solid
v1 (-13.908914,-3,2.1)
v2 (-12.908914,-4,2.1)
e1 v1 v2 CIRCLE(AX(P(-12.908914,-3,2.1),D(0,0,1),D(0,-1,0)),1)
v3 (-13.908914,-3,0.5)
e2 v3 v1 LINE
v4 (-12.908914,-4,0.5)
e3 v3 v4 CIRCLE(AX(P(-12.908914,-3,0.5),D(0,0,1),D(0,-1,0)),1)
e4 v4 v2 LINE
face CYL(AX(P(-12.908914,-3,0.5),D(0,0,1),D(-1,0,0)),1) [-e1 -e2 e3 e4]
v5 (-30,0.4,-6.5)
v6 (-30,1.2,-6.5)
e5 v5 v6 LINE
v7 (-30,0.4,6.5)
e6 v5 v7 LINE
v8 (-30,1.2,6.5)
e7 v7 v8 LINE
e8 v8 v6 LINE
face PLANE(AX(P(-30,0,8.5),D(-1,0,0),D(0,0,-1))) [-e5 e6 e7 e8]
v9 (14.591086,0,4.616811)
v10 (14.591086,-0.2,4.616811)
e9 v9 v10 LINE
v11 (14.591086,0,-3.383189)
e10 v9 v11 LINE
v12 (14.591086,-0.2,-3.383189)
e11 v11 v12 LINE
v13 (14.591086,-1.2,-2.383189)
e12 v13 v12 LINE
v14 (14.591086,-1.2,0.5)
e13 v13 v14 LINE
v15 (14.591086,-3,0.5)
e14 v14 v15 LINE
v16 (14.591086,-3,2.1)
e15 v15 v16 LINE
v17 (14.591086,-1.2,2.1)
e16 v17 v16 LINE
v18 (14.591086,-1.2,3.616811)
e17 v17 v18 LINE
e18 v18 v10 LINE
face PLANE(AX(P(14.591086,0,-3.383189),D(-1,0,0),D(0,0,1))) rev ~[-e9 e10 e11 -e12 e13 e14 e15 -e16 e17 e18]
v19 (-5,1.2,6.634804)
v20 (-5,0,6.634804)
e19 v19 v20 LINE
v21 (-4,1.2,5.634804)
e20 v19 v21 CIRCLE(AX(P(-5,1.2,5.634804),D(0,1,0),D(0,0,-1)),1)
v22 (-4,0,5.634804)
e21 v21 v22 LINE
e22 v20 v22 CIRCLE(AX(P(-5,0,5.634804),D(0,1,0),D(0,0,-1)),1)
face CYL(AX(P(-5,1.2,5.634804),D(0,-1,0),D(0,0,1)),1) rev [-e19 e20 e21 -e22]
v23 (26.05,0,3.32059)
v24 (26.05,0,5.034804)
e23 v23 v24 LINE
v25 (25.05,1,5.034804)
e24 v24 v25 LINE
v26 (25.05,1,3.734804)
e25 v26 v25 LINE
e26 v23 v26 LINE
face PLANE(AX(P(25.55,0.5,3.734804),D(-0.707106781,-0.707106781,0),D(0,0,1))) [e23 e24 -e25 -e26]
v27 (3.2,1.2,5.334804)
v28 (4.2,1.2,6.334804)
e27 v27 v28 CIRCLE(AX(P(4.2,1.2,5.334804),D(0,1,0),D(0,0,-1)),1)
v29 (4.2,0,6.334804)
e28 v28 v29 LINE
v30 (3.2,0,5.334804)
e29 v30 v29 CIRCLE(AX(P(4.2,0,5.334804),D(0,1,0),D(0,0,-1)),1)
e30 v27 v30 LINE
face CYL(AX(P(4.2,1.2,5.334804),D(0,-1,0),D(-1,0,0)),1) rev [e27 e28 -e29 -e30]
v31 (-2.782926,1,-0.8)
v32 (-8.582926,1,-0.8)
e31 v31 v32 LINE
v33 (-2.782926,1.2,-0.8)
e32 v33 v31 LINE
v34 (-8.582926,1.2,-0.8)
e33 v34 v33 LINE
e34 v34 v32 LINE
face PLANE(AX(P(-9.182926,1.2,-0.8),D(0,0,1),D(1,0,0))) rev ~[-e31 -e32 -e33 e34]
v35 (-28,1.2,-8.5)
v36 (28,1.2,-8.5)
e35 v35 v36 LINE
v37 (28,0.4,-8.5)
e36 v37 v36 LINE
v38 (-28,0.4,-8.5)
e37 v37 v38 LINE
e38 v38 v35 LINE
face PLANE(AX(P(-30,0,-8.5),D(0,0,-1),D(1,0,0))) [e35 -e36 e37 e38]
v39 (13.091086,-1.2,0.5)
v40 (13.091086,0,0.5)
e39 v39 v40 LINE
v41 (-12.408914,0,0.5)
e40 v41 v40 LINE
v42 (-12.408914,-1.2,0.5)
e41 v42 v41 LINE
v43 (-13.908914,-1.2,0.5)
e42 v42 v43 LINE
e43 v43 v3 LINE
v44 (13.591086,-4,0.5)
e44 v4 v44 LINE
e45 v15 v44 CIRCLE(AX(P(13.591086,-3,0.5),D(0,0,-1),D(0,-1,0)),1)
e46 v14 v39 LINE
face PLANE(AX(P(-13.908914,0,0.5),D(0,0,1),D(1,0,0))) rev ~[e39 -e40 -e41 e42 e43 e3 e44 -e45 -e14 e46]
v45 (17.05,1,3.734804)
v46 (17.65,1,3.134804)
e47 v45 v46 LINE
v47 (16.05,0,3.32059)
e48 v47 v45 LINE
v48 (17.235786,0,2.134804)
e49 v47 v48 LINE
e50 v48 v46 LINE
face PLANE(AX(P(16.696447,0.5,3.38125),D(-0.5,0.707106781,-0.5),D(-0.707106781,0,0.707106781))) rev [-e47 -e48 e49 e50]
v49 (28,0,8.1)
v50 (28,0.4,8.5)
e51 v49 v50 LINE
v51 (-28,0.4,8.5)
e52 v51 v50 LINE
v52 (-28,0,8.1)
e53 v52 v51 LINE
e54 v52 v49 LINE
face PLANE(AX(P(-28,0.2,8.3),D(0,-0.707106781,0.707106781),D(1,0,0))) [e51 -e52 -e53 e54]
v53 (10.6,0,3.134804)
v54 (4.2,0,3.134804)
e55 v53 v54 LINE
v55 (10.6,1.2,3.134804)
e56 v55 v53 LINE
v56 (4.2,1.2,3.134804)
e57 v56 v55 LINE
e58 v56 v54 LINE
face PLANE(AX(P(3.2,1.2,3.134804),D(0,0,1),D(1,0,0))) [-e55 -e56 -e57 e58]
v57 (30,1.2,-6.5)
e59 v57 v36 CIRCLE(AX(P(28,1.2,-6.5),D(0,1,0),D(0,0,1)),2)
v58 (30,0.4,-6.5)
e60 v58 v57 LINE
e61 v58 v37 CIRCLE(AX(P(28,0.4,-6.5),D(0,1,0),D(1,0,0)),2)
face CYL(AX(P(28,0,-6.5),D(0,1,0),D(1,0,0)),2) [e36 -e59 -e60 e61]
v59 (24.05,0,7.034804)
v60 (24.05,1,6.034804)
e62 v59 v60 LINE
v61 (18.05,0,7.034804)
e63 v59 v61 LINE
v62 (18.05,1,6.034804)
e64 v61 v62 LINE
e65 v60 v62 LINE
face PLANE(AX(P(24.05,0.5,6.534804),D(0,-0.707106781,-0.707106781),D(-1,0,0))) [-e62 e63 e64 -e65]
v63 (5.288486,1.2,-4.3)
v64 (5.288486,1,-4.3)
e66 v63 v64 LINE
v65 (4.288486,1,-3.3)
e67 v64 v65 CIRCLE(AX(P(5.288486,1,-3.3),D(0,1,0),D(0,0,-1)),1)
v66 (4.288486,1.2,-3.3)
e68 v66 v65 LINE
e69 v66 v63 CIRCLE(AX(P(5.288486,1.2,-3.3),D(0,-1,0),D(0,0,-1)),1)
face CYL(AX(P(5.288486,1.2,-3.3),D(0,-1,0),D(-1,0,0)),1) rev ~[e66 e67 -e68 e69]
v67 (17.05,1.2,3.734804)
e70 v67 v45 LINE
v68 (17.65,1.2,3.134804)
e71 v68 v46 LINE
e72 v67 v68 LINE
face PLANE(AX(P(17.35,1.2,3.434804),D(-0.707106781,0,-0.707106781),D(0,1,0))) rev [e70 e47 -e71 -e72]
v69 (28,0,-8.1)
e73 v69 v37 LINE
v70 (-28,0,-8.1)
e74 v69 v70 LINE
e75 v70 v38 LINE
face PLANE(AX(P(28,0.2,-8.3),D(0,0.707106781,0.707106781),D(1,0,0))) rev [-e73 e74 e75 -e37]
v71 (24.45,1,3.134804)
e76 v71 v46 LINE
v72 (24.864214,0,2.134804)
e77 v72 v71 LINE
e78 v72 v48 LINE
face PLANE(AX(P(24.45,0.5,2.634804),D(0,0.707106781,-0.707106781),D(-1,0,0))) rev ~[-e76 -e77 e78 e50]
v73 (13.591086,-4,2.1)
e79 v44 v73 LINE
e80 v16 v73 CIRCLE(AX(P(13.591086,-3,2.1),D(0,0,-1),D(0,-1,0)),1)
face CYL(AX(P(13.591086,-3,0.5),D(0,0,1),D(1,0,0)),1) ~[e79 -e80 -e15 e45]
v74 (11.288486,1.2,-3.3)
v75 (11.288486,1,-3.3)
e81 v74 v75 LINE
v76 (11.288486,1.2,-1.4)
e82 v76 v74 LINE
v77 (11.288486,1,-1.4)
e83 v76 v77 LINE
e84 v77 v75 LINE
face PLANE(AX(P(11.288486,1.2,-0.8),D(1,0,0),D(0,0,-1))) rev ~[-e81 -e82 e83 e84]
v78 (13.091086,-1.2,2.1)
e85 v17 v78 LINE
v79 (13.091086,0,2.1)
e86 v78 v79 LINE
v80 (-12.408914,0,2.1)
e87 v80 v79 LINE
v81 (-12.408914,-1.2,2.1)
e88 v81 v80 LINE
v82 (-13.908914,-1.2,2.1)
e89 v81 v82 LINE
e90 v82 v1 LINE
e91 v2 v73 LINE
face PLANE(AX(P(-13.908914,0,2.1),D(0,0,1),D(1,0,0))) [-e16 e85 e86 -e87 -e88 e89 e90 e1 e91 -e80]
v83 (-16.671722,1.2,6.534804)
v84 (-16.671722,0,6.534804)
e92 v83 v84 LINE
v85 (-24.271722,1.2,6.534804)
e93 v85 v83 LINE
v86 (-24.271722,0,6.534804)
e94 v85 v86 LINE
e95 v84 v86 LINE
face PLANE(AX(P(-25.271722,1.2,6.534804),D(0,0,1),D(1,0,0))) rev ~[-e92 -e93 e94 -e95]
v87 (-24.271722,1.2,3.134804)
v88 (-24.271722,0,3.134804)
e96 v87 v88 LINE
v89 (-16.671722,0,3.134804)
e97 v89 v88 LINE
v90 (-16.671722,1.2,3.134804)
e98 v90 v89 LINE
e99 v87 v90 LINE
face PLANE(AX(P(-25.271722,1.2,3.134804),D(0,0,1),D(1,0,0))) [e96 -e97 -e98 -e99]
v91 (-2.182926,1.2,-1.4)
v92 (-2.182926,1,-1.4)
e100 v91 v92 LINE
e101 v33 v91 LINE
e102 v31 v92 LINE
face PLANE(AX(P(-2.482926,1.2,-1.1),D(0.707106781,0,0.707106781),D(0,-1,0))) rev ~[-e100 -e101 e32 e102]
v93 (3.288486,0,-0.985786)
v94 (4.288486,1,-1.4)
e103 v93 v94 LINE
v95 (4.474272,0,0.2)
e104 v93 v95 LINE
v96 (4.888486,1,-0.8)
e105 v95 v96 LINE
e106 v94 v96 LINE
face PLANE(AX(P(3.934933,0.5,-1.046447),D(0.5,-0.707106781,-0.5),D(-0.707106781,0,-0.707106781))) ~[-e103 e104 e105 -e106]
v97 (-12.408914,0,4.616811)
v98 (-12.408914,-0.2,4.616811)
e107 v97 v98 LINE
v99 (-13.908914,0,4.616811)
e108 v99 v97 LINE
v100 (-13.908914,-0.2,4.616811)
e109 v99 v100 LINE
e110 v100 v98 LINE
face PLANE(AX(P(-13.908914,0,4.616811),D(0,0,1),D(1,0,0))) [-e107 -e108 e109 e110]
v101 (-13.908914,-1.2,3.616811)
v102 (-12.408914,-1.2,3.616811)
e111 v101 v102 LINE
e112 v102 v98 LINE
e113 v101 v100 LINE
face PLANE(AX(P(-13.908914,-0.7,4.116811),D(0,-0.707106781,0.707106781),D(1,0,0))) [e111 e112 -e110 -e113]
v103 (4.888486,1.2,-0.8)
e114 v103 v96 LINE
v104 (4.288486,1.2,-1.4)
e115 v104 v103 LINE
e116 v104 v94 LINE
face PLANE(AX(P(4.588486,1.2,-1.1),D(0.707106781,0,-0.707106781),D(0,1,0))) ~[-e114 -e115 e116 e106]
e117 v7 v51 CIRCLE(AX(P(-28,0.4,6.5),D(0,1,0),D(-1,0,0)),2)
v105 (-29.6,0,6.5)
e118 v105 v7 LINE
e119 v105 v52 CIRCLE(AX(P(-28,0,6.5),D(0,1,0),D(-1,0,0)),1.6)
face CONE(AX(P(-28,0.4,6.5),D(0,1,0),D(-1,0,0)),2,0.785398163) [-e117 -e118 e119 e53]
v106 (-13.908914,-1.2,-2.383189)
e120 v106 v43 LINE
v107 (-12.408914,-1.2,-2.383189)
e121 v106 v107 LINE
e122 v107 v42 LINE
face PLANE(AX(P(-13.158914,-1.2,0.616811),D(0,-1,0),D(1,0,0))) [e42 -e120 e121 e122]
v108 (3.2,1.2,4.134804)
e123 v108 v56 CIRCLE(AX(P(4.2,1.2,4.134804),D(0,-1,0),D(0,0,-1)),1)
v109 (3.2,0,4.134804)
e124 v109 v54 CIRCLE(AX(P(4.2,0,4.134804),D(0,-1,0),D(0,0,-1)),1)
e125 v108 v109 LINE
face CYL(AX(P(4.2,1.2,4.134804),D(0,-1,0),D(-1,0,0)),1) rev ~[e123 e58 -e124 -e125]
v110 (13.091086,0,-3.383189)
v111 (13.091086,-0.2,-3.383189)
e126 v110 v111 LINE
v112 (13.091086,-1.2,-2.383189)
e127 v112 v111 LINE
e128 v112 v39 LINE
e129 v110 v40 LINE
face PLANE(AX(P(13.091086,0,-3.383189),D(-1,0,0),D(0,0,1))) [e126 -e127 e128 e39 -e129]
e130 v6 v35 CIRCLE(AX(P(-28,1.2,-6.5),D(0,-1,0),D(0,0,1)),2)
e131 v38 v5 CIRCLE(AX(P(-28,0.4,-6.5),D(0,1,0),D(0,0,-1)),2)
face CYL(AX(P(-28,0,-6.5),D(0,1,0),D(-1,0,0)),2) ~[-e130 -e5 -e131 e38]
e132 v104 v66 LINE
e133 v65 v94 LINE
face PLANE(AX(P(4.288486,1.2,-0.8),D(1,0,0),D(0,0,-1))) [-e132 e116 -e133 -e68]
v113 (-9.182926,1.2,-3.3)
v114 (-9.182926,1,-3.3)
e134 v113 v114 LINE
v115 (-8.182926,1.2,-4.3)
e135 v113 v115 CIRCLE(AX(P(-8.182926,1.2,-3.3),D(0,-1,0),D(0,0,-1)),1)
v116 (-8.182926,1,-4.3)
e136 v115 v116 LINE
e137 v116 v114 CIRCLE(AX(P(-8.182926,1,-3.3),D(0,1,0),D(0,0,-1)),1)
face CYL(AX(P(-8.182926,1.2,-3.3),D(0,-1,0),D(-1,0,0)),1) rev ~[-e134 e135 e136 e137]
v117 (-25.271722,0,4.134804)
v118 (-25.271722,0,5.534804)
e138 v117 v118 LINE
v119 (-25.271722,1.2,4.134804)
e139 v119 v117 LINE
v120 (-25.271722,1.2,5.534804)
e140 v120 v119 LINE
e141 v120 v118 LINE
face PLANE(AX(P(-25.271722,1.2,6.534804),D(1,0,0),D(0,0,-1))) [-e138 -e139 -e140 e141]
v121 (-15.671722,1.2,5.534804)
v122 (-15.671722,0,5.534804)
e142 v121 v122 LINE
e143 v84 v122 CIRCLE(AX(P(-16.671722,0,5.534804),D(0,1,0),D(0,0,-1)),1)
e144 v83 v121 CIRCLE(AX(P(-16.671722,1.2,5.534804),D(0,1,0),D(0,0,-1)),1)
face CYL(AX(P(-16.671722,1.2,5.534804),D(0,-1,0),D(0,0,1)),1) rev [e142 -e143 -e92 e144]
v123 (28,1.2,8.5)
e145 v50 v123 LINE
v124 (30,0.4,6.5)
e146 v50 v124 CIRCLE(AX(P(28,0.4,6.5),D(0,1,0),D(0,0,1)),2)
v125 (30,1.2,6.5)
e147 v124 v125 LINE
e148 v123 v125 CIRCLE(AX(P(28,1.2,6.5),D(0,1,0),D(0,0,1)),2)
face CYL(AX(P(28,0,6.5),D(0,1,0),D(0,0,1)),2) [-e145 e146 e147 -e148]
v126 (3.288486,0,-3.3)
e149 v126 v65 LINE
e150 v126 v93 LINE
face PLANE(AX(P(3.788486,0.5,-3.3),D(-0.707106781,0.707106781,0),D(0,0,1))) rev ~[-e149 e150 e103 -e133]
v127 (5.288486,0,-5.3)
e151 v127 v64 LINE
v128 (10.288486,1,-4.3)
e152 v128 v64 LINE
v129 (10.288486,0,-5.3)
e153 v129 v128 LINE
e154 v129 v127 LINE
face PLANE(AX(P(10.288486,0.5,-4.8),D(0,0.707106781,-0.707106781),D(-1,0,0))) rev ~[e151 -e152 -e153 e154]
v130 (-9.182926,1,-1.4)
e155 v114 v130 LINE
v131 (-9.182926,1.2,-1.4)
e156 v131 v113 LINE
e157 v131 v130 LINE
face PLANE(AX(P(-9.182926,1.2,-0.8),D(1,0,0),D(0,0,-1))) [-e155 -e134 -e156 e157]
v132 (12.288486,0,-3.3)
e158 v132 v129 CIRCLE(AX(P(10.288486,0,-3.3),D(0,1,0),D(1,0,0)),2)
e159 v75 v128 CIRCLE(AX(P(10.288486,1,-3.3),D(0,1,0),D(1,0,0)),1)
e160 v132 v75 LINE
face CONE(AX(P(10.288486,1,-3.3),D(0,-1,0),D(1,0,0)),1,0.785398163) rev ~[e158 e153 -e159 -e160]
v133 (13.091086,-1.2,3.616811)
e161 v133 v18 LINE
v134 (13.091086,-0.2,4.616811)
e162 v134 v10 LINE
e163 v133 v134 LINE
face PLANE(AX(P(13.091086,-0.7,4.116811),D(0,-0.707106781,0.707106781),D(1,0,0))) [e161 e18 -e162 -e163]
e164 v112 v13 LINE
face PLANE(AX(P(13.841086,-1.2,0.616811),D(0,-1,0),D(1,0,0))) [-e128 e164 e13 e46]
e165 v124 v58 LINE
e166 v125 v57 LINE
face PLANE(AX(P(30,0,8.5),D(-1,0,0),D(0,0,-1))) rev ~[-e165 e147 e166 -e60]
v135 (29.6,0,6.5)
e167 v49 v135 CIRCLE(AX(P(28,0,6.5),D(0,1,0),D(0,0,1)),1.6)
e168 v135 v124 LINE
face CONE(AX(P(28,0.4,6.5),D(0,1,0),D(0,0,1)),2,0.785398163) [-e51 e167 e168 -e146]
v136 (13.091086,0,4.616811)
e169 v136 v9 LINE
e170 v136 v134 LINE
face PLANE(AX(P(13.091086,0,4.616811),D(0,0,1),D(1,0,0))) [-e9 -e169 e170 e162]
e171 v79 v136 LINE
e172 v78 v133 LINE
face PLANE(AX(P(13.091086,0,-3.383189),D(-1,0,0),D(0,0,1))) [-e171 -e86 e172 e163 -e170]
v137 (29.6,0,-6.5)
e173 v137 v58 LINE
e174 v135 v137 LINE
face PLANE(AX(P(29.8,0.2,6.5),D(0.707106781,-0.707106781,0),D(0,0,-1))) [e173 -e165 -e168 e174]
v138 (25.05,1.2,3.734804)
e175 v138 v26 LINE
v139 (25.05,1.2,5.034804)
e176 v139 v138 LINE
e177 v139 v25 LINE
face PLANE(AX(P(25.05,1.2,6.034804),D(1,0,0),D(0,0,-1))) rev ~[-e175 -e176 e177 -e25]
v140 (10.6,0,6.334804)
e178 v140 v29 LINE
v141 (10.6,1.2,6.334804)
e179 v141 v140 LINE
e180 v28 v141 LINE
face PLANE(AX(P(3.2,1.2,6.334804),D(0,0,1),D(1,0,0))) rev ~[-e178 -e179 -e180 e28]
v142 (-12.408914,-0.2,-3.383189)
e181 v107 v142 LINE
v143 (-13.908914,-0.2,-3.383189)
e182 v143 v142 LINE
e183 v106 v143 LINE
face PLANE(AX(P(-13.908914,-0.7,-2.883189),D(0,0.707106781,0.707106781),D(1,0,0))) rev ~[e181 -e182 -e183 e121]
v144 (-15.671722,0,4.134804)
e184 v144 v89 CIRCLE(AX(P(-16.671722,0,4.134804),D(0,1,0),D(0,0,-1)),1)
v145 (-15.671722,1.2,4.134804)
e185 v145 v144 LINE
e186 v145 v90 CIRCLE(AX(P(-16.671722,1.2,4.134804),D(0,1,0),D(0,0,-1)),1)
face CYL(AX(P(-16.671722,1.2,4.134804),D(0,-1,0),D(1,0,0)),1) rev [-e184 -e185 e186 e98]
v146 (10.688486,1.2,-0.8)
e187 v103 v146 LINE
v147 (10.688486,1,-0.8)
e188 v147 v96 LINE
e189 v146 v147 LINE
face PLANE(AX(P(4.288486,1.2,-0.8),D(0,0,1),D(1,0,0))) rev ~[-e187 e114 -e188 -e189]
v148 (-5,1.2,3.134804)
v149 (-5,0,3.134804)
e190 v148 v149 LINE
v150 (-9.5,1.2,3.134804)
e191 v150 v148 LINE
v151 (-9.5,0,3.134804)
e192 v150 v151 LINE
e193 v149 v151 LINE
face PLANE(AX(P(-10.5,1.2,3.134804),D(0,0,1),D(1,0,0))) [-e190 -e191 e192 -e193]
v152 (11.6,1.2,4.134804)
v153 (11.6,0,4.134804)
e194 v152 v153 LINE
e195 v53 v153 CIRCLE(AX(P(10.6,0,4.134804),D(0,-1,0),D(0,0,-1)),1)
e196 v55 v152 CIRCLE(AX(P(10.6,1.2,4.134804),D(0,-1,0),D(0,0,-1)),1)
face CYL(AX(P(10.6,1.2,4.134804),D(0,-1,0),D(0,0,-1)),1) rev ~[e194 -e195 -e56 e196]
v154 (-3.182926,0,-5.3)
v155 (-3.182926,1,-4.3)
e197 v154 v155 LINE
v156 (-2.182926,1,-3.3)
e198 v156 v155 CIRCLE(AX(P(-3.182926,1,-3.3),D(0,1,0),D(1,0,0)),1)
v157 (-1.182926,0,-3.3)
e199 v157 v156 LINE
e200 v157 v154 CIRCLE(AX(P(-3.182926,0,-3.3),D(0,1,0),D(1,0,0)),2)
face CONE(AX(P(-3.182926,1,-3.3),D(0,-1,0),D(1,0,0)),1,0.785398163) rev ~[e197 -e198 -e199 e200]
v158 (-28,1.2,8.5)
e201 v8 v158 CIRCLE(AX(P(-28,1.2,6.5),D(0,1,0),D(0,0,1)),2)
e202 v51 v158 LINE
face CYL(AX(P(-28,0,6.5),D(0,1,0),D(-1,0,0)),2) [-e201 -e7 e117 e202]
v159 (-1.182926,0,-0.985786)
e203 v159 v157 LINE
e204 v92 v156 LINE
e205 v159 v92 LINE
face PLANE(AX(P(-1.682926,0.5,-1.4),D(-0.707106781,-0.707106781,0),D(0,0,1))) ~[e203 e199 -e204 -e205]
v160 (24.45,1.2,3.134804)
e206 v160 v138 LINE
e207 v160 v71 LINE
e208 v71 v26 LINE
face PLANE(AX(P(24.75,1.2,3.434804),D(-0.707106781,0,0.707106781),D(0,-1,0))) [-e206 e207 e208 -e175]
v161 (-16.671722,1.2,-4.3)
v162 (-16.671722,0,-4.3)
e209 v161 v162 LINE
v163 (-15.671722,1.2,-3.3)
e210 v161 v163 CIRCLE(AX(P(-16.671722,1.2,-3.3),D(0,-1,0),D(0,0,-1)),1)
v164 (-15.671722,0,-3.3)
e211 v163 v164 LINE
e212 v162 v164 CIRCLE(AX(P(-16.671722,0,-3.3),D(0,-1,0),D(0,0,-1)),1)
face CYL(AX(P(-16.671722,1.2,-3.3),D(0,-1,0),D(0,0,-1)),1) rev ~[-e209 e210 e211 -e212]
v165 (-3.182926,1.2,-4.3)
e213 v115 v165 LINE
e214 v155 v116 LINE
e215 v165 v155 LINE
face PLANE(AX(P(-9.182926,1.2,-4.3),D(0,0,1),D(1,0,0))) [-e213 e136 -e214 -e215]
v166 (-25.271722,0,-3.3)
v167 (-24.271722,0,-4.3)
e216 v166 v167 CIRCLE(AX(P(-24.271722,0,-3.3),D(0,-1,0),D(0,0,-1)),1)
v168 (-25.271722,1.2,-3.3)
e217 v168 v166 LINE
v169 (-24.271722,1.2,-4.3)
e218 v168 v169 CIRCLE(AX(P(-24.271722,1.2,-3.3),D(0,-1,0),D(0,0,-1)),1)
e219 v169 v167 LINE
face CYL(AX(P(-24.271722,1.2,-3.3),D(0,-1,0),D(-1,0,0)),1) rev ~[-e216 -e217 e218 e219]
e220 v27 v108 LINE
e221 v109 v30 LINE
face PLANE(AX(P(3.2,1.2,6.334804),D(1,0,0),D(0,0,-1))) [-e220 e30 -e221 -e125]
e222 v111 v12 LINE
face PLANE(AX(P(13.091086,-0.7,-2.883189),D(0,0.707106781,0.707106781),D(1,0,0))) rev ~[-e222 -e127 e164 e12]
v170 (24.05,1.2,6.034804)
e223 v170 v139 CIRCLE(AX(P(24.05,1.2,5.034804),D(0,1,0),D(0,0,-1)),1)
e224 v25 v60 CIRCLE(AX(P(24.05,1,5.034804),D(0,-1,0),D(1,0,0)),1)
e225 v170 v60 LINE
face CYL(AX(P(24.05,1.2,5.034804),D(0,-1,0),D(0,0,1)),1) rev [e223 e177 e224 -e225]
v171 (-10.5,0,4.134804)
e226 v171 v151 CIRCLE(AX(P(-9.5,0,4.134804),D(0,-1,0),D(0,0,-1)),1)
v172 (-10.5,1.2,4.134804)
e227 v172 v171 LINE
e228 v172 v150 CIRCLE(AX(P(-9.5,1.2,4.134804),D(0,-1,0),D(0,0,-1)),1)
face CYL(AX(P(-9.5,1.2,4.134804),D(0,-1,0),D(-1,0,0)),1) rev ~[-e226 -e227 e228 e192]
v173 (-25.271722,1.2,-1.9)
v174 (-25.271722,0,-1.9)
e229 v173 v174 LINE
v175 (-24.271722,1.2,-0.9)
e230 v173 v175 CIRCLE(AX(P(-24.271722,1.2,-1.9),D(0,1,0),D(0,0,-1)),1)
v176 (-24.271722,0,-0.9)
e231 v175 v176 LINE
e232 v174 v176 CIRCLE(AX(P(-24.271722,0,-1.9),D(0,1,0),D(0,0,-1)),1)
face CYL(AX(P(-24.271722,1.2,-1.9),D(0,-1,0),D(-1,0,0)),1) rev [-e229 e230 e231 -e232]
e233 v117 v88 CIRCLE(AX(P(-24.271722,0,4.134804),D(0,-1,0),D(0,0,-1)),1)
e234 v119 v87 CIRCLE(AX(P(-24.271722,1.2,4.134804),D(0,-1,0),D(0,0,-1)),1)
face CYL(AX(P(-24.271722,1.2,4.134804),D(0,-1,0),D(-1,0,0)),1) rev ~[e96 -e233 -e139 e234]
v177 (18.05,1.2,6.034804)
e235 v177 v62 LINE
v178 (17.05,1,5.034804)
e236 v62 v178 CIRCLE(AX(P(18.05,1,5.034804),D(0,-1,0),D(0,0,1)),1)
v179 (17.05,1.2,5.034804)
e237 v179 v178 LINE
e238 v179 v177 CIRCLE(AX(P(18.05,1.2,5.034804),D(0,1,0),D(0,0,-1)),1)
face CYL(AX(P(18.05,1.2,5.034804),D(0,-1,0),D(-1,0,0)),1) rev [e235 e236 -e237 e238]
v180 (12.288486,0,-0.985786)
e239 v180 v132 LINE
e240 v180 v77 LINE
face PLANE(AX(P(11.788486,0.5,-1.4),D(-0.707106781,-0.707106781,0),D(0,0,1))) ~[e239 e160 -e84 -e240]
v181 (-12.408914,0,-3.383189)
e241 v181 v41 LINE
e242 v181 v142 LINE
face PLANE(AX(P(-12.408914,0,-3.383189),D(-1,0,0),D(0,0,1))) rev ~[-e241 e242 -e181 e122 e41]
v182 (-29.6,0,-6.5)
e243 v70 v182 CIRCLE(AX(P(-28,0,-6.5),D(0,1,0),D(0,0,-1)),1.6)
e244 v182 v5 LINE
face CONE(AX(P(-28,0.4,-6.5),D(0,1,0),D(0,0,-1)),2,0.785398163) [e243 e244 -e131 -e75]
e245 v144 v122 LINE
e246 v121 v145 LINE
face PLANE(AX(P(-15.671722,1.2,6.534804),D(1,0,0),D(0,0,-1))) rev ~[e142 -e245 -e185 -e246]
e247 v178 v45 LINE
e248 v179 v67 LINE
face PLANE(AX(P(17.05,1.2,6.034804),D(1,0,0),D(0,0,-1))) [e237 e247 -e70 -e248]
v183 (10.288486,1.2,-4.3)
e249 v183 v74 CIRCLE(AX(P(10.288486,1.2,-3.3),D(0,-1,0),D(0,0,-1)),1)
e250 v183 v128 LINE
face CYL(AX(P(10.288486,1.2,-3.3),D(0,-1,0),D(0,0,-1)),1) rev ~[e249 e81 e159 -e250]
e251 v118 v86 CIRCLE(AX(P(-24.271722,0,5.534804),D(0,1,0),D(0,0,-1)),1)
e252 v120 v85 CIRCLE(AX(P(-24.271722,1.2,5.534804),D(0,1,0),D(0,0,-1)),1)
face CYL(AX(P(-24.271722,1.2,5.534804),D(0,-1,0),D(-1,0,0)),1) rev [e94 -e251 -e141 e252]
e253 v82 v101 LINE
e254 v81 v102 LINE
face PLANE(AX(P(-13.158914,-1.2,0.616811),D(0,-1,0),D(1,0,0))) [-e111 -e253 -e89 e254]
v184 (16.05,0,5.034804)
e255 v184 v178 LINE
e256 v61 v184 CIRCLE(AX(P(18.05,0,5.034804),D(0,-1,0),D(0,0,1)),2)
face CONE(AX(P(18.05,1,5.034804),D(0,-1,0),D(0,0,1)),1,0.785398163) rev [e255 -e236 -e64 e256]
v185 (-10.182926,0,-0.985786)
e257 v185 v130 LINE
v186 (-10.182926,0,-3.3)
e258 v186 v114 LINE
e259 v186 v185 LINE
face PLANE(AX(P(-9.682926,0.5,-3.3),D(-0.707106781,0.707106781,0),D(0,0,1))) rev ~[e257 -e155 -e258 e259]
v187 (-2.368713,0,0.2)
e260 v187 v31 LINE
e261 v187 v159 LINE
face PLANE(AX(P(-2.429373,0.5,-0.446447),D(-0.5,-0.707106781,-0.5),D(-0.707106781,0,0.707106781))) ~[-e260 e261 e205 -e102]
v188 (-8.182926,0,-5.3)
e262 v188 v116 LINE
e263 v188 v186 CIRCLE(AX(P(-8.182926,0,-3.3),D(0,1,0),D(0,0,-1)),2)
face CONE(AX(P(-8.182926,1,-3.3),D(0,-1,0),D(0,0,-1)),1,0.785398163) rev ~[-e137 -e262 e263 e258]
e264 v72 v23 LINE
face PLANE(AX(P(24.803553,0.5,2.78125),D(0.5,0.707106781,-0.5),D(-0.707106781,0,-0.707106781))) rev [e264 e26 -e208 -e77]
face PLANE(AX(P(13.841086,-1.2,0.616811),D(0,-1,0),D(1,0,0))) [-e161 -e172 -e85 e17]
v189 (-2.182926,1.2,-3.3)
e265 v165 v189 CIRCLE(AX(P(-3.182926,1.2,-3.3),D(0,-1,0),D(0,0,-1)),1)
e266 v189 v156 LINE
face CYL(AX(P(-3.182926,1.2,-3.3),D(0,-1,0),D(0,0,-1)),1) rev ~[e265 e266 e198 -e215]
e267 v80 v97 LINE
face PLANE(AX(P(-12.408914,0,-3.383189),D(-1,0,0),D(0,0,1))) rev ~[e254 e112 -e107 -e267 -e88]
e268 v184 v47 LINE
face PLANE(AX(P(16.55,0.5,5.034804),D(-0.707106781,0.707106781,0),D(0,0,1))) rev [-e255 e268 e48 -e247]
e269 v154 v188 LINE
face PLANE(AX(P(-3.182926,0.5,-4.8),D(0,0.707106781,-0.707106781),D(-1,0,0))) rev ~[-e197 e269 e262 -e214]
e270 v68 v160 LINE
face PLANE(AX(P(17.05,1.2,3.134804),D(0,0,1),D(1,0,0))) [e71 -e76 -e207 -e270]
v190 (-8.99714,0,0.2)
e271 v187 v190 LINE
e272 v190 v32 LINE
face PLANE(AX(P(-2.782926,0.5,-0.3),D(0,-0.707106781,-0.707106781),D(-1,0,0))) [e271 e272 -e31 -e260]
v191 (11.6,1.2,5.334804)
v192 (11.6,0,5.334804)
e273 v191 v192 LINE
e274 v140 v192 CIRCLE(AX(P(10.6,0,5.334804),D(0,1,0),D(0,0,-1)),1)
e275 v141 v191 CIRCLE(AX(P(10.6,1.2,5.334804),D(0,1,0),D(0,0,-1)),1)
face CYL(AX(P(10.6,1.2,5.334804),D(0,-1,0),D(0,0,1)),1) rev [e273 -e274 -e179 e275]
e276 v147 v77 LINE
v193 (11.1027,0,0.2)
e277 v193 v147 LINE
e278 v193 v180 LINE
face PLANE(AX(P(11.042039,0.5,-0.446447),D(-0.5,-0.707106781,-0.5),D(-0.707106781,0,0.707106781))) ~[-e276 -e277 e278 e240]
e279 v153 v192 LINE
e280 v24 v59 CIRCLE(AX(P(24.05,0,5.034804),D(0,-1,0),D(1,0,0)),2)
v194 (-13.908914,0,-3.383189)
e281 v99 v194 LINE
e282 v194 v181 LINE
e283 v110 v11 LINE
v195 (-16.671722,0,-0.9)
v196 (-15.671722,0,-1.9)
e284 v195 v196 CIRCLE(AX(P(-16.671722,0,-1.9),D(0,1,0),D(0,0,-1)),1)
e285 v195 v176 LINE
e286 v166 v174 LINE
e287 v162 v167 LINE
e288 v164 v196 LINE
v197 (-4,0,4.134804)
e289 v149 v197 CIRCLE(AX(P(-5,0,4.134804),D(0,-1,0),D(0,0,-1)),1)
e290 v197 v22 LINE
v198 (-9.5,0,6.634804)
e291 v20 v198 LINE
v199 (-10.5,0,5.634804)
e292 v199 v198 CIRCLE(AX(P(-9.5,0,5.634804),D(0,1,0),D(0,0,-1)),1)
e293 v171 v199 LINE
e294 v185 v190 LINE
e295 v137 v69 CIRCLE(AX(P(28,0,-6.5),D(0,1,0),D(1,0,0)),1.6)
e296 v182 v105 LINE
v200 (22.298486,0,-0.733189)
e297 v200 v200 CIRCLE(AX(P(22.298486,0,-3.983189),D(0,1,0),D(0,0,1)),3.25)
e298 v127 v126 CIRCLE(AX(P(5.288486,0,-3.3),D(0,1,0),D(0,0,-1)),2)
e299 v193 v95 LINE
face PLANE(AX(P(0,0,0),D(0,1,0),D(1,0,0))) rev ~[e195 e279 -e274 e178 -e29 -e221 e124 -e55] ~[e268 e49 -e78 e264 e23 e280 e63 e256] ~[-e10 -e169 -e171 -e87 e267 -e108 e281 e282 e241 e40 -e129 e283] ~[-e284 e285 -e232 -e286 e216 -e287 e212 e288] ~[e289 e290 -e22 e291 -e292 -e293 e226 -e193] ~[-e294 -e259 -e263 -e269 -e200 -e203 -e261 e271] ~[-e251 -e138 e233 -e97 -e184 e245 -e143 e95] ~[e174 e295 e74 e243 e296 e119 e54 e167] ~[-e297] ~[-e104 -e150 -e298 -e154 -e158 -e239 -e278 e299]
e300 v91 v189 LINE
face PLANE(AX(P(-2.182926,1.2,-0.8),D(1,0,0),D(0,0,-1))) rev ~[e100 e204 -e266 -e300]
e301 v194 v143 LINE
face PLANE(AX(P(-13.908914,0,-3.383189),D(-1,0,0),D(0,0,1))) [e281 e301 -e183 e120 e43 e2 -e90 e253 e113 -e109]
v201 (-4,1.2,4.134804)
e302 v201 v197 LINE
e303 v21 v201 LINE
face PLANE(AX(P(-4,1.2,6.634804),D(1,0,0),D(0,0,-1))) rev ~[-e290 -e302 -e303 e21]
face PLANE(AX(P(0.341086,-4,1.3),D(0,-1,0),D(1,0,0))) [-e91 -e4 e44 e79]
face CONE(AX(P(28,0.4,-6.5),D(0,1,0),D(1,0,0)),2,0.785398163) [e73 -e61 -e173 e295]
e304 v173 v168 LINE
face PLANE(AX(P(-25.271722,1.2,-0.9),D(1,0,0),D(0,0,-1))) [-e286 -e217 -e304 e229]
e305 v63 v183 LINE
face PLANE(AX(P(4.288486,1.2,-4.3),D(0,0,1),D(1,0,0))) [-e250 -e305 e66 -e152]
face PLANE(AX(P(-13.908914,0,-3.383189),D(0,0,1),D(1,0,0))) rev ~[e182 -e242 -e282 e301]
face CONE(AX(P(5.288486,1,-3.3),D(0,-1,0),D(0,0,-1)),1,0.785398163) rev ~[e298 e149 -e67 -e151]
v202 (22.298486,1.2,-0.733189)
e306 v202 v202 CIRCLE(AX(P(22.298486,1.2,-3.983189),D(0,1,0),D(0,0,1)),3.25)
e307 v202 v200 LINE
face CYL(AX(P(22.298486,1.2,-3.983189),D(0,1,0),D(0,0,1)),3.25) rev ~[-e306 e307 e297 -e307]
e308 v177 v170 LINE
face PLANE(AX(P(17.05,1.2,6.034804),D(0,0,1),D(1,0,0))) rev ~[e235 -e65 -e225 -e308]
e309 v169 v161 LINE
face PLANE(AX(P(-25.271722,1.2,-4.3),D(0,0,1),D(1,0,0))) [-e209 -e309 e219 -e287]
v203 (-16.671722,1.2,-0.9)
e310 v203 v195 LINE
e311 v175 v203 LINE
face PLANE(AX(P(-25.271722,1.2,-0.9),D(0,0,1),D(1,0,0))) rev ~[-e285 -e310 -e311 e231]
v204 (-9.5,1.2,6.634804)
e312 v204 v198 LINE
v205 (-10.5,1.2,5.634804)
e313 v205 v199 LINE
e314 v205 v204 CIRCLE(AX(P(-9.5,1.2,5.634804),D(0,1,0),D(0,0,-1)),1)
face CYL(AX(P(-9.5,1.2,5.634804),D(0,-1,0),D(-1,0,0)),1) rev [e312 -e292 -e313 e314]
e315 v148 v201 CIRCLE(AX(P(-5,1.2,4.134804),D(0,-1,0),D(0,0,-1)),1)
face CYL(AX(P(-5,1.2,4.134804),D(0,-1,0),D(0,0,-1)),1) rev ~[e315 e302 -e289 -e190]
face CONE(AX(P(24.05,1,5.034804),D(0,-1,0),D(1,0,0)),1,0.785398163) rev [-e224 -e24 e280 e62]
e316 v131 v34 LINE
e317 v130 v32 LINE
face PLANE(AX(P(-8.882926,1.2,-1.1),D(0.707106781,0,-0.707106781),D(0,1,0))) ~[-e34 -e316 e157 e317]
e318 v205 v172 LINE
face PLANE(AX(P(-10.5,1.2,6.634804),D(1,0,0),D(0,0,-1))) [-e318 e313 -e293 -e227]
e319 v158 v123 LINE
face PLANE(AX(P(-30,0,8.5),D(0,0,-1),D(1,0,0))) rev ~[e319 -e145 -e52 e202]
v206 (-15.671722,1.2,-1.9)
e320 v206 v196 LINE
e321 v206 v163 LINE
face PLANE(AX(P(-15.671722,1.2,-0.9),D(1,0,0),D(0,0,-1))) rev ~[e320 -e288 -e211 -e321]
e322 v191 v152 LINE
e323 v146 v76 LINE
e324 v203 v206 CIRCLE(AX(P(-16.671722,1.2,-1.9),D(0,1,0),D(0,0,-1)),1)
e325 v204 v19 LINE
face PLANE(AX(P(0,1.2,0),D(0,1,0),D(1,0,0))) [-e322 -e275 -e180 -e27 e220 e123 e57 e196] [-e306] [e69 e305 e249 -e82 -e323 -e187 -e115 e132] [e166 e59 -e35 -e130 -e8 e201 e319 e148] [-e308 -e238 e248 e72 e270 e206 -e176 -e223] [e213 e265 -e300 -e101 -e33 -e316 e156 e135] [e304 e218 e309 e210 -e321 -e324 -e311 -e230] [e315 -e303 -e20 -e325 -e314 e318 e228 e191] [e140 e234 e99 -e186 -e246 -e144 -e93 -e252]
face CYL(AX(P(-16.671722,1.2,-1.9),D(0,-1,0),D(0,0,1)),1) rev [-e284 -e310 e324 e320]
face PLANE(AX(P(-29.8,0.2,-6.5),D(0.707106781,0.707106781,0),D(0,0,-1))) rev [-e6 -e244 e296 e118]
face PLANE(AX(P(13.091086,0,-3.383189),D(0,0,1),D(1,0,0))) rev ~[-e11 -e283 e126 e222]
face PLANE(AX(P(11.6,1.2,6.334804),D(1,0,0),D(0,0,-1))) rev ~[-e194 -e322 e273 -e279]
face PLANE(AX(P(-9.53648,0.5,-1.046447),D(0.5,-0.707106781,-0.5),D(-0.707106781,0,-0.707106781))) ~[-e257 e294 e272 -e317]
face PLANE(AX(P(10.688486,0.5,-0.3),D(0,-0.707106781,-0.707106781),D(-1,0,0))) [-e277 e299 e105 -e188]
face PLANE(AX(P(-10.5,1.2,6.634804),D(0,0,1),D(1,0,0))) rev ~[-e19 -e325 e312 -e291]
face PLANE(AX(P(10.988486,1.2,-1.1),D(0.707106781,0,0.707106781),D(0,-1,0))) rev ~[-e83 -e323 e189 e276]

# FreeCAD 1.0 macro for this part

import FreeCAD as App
import Part
import Sketcher
from FreeCAD import Vector
Q = App.Units.Quantity


def edges_at(feature, points):
    """Names of the edges that pass closest to the given points."""
    edges = feature.Shape.Edges
    near = lambda p: min(range(len(edges)), key=lambda i: edges[i].distToShape(Part.Vertex(*p))[0])
    return sorted({f"Edge{near(p) + 1}" for p in points})

doc = App.newDocument("Part")
params = doc.addObject("Spreadsheet::Sheet", "Params")
for row, (alias, value) in enumerate([
    ("sketch1_width", "60 mm"),
    ("sketch1_height", "17 mm"),
    ("pad1_length", "1.2 mm"),
    ("sketch2_diameter", "6.5 mm"),
    ("sketch3_width", "9.6 mm"),
    ("sketch3_height", "3.4 mm"),
    ("sketch4_width", "7 mm"),
    ("sketch4_height", "3.5 mm"),
    ("sketch5_width", "7 mm"),
    ("sketch5_height", "3.5 mm"),
    ("sketch6_width", "8 mm"),
    ("sketch6_height", "2.9 mm"),
    ("sketch7_width", "8.4 mm"),
    ("sketch7_height", "3.2 mm"),
    ("sketch8_width", "6.5 mm"),
    ("sketch8_height", "3.5 mm"),
    ("sketch9_width", "9.6 mm"),
    ("sketch9_height", "3.4 mm"),
    ("fillet_radius", "1 mm"),
    ("chamfer_size", "0.6 mm"),
    ("sketch10_height", "8 mm"),
    ("sketch10_width", "1.5 mm"),
    ("pad2_length", "1.2 mm"),
    ("sketch11_width", "28.5 mm"),
    ("sketch11_height", "1.6 mm"),
    ("pad3_length", "4 mm"),
    ("fillet2_radius", "1 mm"),
    ("chamfer2_size", "1 mm"),
    ("chamfer3_size", "1 mm"),
    ("fillet3_radius", "2 mm"),
    ("chamfer4_size", "0.4 mm"),
], start=1):
    params.set(f"A{row}", alias)
    params.set(f"B{row}", "=" + value)
    params.setAlias(f"B{row}", alias)

body = doc.addObject("PartDesign::Body", "Body")

sketch1 = body.newObject("Sketcher::SketchObject", "Sketch")
sketch1.AttachmentSupport = (doc.getObject("XZ_Plane"), [""])
sketch1.MapMode = "FlatFace"
sketch1.addGeometry([
    Part.LineSegment(Vector(-30, -8, 0), Vector(-30, 8, 0)),
    Part.LineSegment(Vector(-30, 8, 0), Vector(30, 8, 0)),
    Part.LineSegment(Vector(30, 8, 0), Vector(30, -8, 0)),
    Part.LineSegment(Vector(30, -8, 0), Vector(-30, -8, 0)),
], False)
sketch1.addConstraint([
    Sketcher.Constraint("Coincident", 0, 2, 1, 1),
    Sketcher.Constraint("Coincident", 1, 2, 2, 1),
    Sketcher.Constraint("Coincident", 2, 2, 3, 1),
    Sketcher.Constraint("Coincident", 3, 2, 0, 1),
    Sketcher.Constraint("Vertical", 0),
    Sketcher.Constraint("Horizontal", 1),
    Sketcher.Constraint("Vertical", 2),
    Sketcher.Constraint("Horizontal", 3),
    Sketcher.Constraint("Symmetric", 0, 2, 2, 2, -1, 1),
    Sketcher.Constraint("DistanceX", 1, 1, 1, 2, Q("60 mm")),
    Sketcher.Constraint("DistanceY", 0, 1, 0, 2, Q("17 mm")),
])
sketch1.setExpression("Constraints[9]", "Params.sketch1_width")
sketch1.setExpression("Constraints[10]", "Params.sketch1_height")
pad1 = body.newObject("PartDesign::Pad", "Pad")
pad1.Profile = sketch1
pad1.setExpression("Length", "Params.pad1_length")
pad1.Reversed = True

sketch2 = body.newObject("Sketcher::SketchObject", "Sketch001")
sketch2.AttachmentSupport = (doc.getObject("XZ_Plane"), [""])
sketch2.MapMode = "FlatFace"
sketch2.AttachmentOffset = App.Placement(Vector(0, 0, -1.2), App.Rotation())
sketch2.addGeometry(Part.Circle(Vector(22.3, -4, 0), Vector(0, 0, 1), 3.2), False)
sketch2.addConstraint([
    Sketcher.Constraint("Diameter", 0, Q("6.5 mm")),
    Sketcher.Constraint("DistanceY", 0, 3, -1, 1, Q("3.983189 mm")),
    Sketcher.Constraint("DistanceX", -1, 1, 0, 3, Q("22.298486 mm")),
])
sketch2.setExpression("Constraints[0]", "Params.sketch2_diameter")
pocket1 = body.newObject("PartDesign::Pocket", "Pocket")
pocket1.Profile = sketch2
pocket1.Type = "UpToFirst"
pocket1.Reversed = True

sketch3 = body.newObject("Sketcher::SketchObject", "Sketch002")
sketch3.AttachmentSupport = (doc.getObject("XZ_Plane"), [""])
sketch3.MapMode = "FlatFace"
sketch3.AttachmentOffset = App.Placement(Vector(0, 0, -1.2), App.Rotation())
sketch3.addGeometry([
    Part.LineSegment(Vector(-25.3, -4.3, 0), Vector(-25.3, -0.9, 0)),
    Part.LineSegment(Vector(-25.3, -0.9, 0), Vector(-15.7, -0.9, 0)),
    Part.LineSegment(Vector(-15.7, -0.9, 0), Vector(-15.7, -4.3, 0)),
    Part.LineSegment(Vector(-15.7, -4.3, 0), Vector(-25.3, -4.3, 0)),
], False)
sketch3.addConstraint([
    Sketcher.Constraint("Coincident", 0, 2, 1, 1),
    Sketcher.Constraint("Coincident", 1, 2, 2, 1),
    Sketcher.Constraint("Coincident", 2, 2, 3, 1),
    Sketcher.Constraint("Coincident", 3, 2, 0, 1),
    Sketcher.Constraint("Vertical", 0),
    Sketcher.Constraint("Horizontal", 1),
    Sketcher.Constraint("Vertical", 2),
    Sketcher.Constraint("Horizontal", 3),
    Sketcher.Constraint("DistanceX", 1, 1, 1, 2, Q("9.6 mm")),
    Sketcher.Constraint("DistanceY", 0, 1, 0, 2, Q("3.4 mm")),
    Sketcher.Constraint("DistanceY", 0, 2, -1, 1, Q("0.9 mm")),
    Sketcher.Constraint("DistanceX", 0, 2, -1, 1, Q("25.271722 mm")),
])
sketch3.setExpression("Constraints[8]", "Params.sketch3_width")
sketch3.setExpression("Constraints[9]", "Params.sketch3_height")
pocket2 = body.newObject("PartDesign::Pocket", "Pocket001")
pocket2.Profile = sketch3
pocket2.Type = "UpToFirst"
pocket2.Reversed = True

sketch4 = body.newObject("Sketcher::SketchObject", "Sketch003")
sketch4.AttachmentSupport = (doc.getObject("XZ_Plane"), [""])
sketch4.MapMode = "FlatFace"
sketch4.AttachmentOffset = App.Placement(Vector(0, 0, -1.2), App.Rotation())
sketch4.addGeometry([
    Part.LineSegment(Vector(-9.2, -4.3, 0), Vector(-9.2, -0.8, 0)),
    Part.LineSegment(Vector(-9.2, -0.8, 0), Vector(-2.2, -0.8, 0)),
    Part.LineSegment(Vector(-2.2, -0.8, 0), Vector(-2.2, -4.3, 0)),
    Part.LineSegment(Vector(-2.2, -4.3, 0), Vector(-9.2, -4.3, 0)),
], False)
sketch4.addConstraint([
    Sketcher.Constraint("Coincident", 0, 2, 1, 1),
    Sketcher.Constraint("Coincident", 1, 2, 2, 1),
    Sketcher.Constraint("Coincident", 2, 2, 3, 1),
    Sketcher.Constraint("Coincident", 3, 2, 0, 1),
    Sketcher.Constraint("Vertical", 0),
    Sketcher.Constraint("Horizontal", 1),
    Sketcher.Constraint("Vertical", 2),
    Sketcher.Constraint("Horizontal", 3),
    Sketcher.Constraint("DistanceX", 1, 1, 1, 2, Q("7 mm")),
    Sketcher.Constraint("DistanceY", 0, 1, 0, 2, Q("3.5 mm")),
    Sketcher.Constraint("DistanceY", 0, 2, -1, 1, Q("0.8 mm")),
    Sketcher.Constraint("DistanceX", 0, 2, -1, 1, Q("9.182926 mm")),
])
sketch4.setExpression("Constraints[8]", "Params.sketch4_width")
sketch4.setExpression("Constraints[9]", "Params.sketch4_height")
pocket3 = body.newObject("PartDesign::Pocket", "Pocket002")
pocket3.Profile = sketch4
pocket3.Type = "UpToFirst"
pocket3.Reversed = True

sketch5 = body.newObject("Sketcher::SketchObject", "Sketch004")
sketch5.AttachmentSupport = (doc.getObject("XZ_Plane"), [""])
sketch5.MapMode = "FlatFace"
sketch5.AttachmentOffset = App.Placement(Vector(0, 0, -1.2), App.Rotation())
sketch5.addGeometry([
    Part.LineSegment(Vector(4.3, -4.3, 0), Vector(4.3, -0.8, 0)),
    Part.LineSegment(Vector(4.3, -0.8, 0), Vector(11.3, -0.8, 0)),
    Part.LineSegment(Vector(11.3, -0.8, 0), Vector(11.3, -4.3, 0)),
    Part.LineSegment(Vector(11.3, -4.3, 0), Vector(4.3, -4.3, 0)),
], False)
sketch5.addConstraint([
    Sketcher.Constraint("Coincident", 0, 2, 1, 1),
    Sketcher.Constraint("Coincident", 1, 2, 2, 1),
    Sketcher.Constraint("Coincident", 2, 2, 3, 1),
    Sketcher.Constraint("Coincident", 3, 2, 0, 1),
    Sketcher.Constraint("Vertical", 0),
    Sketcher.Constraint("Horizontal", 1),
    Sketcher.Constraint("Vertical", 2),
    Sketcher.Constraint("Horizontal", 3),
    Sketcher.Constraint("DistanceX", 1, 1, 1, 2, Q("7 mm")),
    Sketcher.Constraint("DistanceY", 0, 1, 0, 2, Q("3.5 mm")),
    Sketcher.Constraint("DistanceY", 0, 2, -1, 1, Q("0.8 mm")),
    Sketcher.Constraint("DistanceX", -1, 1, 0, 2, Q("4.288486 mm")),
])
sketch5.setExpression("Constraints[8]", "Params.sketch5_width")
sketch5.setExpression("Constraints[9]", "Params.sketch5_height")
pocket4 = body.newObject("PartDesign::Pocket", "Pocket003")
pocket4.Profile = sketch5
pocket4.Type = "UpToFirst"
pocket4.Reversed = True

sketch6 = body.newObject("Sketcher::SketchObject", "Sketch005")
sketch6.AttachmentSupport = (doc.getObject("XZ_Plane"), [""])
sketch6.MapMode = "FlatFace"
sketch6.AttachmentOffset = App.Placement(Vector(0, 0, -1.2), App.Rotation())
sketch6.addGeometry([
    Part.LineSegment(Vector(17.1, 3.1, 0), Vector(17.1, 6, 0)),
    Part.LineSegment(Vector(17.1, 6, 0), Vector(25.1, 6, 0)),
    Part.LineSegment(Vector(25.1, 6, 0), Vector(25.1, 3.1, 0)),
    Part.LineSegment(Vector(25.1, 3.1, 0), Vector(17.1, 3.1, 0)),
], False)
sketch6.addConstraint([
    Sketcher.Constraint("Coincident", 0, 2, 1, 1),
    Sketcher.Constraint("Coincident", 1, 2, 2, 1),
    Sketcher.Constraint("Coincident", 2, 2, 3, 1),
    Sketcher.Constraint("Coincident", 3, 2, 0, 1),
    Sketcher.Constraint("Vertical", 0),
    Sketcher.Constraint("Horizontal", 1),
    Sketcher.Constraint("Vertical", 2),
    Sketcher.Constraint("Horizontal", 3),
    Sketcher.Constraint("DistanceX", 1, 1, 1, 2, Q("8 mm")),
    Sketcher.Constraint("DistanceY", 0, 1, 0, 2, Q("2.9 mm")),
    Sketcher.Constraint("DistanceX", -1, 1, 0, 2, Q("17.05 mm")),
    Sketcher.Constraint("DistanceY", -1, 1, 0, 2, Q("6.034804 mm")),
])
sketch6.setExpression("Constraints[8]", "Params.sketch6_width")
sketch6.setExpression("Constraints[9]", "Params.sketch6_height")
pocket5 = body.newObject("PartDesign::Pocket", "Pocket004")
pocket5.Profile = sketch6
pocket5.Type = "UpToFirst"
pocket5.Reversed = True

sketch7 = body.newObject("Sketcher::SketchObject", "Sketch006")
sketch7.AttachmentSupport = (doc.getObject("XZ_Plane"), [""])
sketch7.MapMode = "FlatFace"
sketch7.AttachmentOffset = App.Placement(Vector(0, 0, -1.2), App.Rotation())
sketch7.addGeometry([
    Part.LineSegment(Vector(3.2, 3.1, 0), Vector(3.2, 6.3, 0)),
    Part.LineSegment(Vector(3.2, 6.3, 0), Vector(11.6, 6.3, 0)),
    Part.LineSegment(Vector(11.6, 6.3, 0), Vector(11.6, 3.1, 0)),
    Part.LineSegment(Vector(11.6, 3.1, 0), Vector(3.2, 3.1, 0)),
], False)
sketch7.addConstraint([
    Sketcher.Constraint("Coincident", 0, 2, 1, 1),
    Sketcher.Constraint("Coincident", 1, 2, 2, 1),
    Sketcher.Constraint("Coincident", 2, 2, 3, 1),
    Sketcher.Constraint("Coincident", 3, 2, 0, 1),
    Sketcher.Constraint("Vertical", 0),
    Sketcher.Constraint("Horizontal", 1),
    Sketcher.Constraint("Vertical", 2),
    Sketcher.Constraint("Horizontal", 3),
    Sketcher.Constraint("DistanceX", 1, 1, 1, 2, Q("8.4 mm")),
    Sketcher.Constraint("DistanceY", 0, 1, 0, 2, Q("3.2 mm")),
    Sketcher.Constraint("DistanceX", -1, 1, 0, 2, Q("3.2 mm")),
    Sketcher.Constraint("DistanceY", -1, 1, 0, 2, Q("6.334804 mm")),
])
sketch7.setExpression("Constraints[8]", "Params.sketch7_width")
sketch7.setExpression("Constraints[9]", "Params.sketch7_height")
pocket6 = body.newObject("PartDesign::Pocket", "Pocket005")
pocket6.Profile = sketch7
pocket6.Type = "UpToFirst"
pocket6.Reversed = True

sketch8 = body.newObject("Sketcher::SketchObject", "Sketch007")
sketch8.AttachmentSupport = (doc.getObject("XZ_Plane"), [""])
sketch8.MapMode = "FlatFace"
sketch8.AttachmentOffset = App.Placement(Vector(0, 0, -1.2), App.Rotation())
sketch8.addGeometry([
    Part.LineSegment(Vector(-10.5, 3.1, 0), Vector(-10.5, 6.6, 0)),
    Part.LineSegment(Vector(-10.5, 6.6, 0), Vector(-4, 6.6, 0)),
    Part.LineSegment(Vector(-4, 6.6, 0), Vector(-4, 3.1, 0)),
    Part.LineSegment(Vector(-4, 3.1, 0), Vector(-10.5, 3.1, 0)),
], False)
sketch8.addConstraint([
    Sketcher.Constraint("Coincident", 0, 2, 1, 1),
    Sketcher.Constraint("Coincident", 1, 2, 2, 1),
    Sketcher.Constraint("Coincident", 2, 2, 3, 1),
    Sketcher.Constraint("Coincident", 3, 2, 0, 1),
    Sketcher.Constraint("Vertical", 0),
    Sketcher.Constraint("Horizontal", 1),
    Sketcher.Constraint("Vertical", 2),
    Sketcher.Constraint("Horizontal", 3),
    Sketcher.Constraint("DistanceX", 1, 1, 1, 2, Q("6.5 mm")),
    Sketcher.Constraint("DistanceY", 0, 1, 0, 2, Q("3.5 mm")),
    Sketcher.Constraint("DistanceX", 1, 2, -1, 1, Q("4 mm")),
    Sketcher.Constraint("DistanceY", -1, 1, 0, 2, Q("6.634804 mm")),
])
sketch8.setExpression("Constraints[8]", "Params.sketch8_width")
sketch8.setExpression("Constraints[9]", "Params.sketch8_height")
pocket7 = body.newObject("PartDesign::Pocket", "Pocket006")
pocket7.Profile = sketch8
pocket7.Type = "UpToFirst"
pocket7.Reversed = True

sketch9 = body.newObject("Sketcher::SketchObject", "Sketch008")
sketch9.AttachmentSupport = (doc.getObject("XZ_Plane"), [""])
sketch9.MapMode = "FlatFace"
sketch9.AttachmentOffset = App.Placement(Vector(0, 0, -1.2), App.Rotation())
sketch9.addGeometry([
    Part.LineSegment(Vector(-25.3, 3.1, 0), Vector(-25.3, 6.5, 0)),
    Part.LineSegment(Vector(-25.3, 6.5, 0), Vector(-15.7, 6.5, 0)),
    Part.LineSegment(Vector(-15.7, 6.5, 0), Vector(-15.7, 3.1, 0)),
    Part.LineSegment(Vector(-15.7, 3.1, 0), Vector(-25.3, 3.1, 0)),
], False)
sketch9.addConstraint([
    Sketcher.Constraint("Coincident", 0, 2, 1, 1),
    Sketcher.Constraint("Coincident", 1, 2, 2, 1),
    Sketcher.Constraint("Coincident", 2, 2, 3, 1),
    Sketcher.Constraint("Coincident", 3, 2, 0, 1),
    Sketcher.Constraint("Vertical", 0),
    Sketcher.Constraint("Horizontal", 1),
    Sketcher.Constraint("Vertical", 2),
    Sketcher.Constraint("Horizontal", 3),
    Sketcher.Constraint("DistanceX", 1, 1, 1, 2, Q("9.6 mm")),
    Sketcher.Constraint("DistanceY", 0, 1, 0, 2, Q("3.4 mm")),
    Sketcher.Constraint("DistanceX", 0, 2, -1, 1, Q("25.271722 mm")),
    Sketcher.Constraint("DistanceY", -1, 1, 0, 2, Q("6.534804 mm")),
])
sketch9.setExpression("Constraints[8]", "Params.sketch9_width")
sketch9.setExpression("Constraints[9]", "Params.sketch9_height")
pocket8 = body.newObject("PartDesign::Pocket", "Pocket007")
pocket8.Profile = sketch9
pocket8.Type = "UpToFirst"
pocket8.Reversed = True
doc.recompute()

fillet = body.newObject("PartDesign::Fillet", "Fillet")
fillet.Base = (pocket8, edges_at(pocket8, [
    (-9.183, 0.6, -4.3),
    (-2.183, 0.6, -4.3),
    (4.288, 0.6, -4.3),
    (11.288, 0.6, -4.3),
    (17.05, 0.6, 6.035),
    (25.05, 0.6, 6.035),
    (3.2, 0.6, 6.335),
    (3.2, 0.6, 3.135),
    (11.6, 0.6, 3.135),
    (11.6, 0.6, 6.335),
    (-10.5, 0.6, 6.635),
    (-10.5, 0.6, 3.135),
    (-4, 0.6, 3.135),
    (-4, 0.6, 6.635),
    (-25.272, 0.6, 6.535),
    (-25.272, 0.6, 3.135),
    (-15.672, 0.6, 3.135),
    (-15.672, 0.6, 6.535),
    (-25.272, 0.6, -0.9),
    (-25.272, 0.6, -4.3),
    (-15.672, 0.6, -4.3),
    (-15.672, 0.6, -0.9),
]))
fillet.setExpression("Radius", "Params.fillet_radius")
doc.recompute()

chamfer = body.newObject("PartDesign::Chamfer", "Chamfer")
chamfer.Base = (fillet, edges_at(fillet, [
    (-9.183, 0.6, -0.8),
    (-2.183, 0.6, -0.8),
    (4.288, 0.6, -0.8),
    (11.288, 0.6, -0.8),
    (17.05, 0.6, 3.135),
    (25.05, 0.6, 3.135),
]))
chamfer.setExpression("Size", "Params.chamfer_size")

sketch10 = body.newObject("Sketcher::SketchObject", "Sketch009")
sketch10.AttachmentSupport = (doc.getObject("XZ_Plane"), [""])
sketch10.MapMode = "FlatFace"
sketch10.addGeometry([
    Part.LineSegment(Vector(-13.9, 4.6, 0), Vector(-13.9, -3.4, 0)),
    Part.LineSegment(Vector(-13.9, -3.4, 0), Vector(-12.4, -3.4, 0)),
    Part.LineSegment(Vector(-12.4, -3.4, 0), Vector(-12.4, 4.6, 0)),
    Part.LineSegment(Vector(-12.4, 4.6, 0), Vector(-13.9, 4.6, 0)),
    Part.LineSegment(Vector(13.1, 4.6, 0), Vector(13.1, -3.4, 0)),
    Part.LineSegment(Vector(13.1, -3.4, 0), Vector(14.6, -3.4, 0)),
    Part.LineSegment(Vector(14.6, -3.4, 0), Vector(14.6, 4.6, 0)),
    Part.LineSegment(Vector(14.6, 4.6, 0), Vector(13.1, 4.6, 0)),
], False)
sketch10.addConstraint([
    Sketcher.Constraint("Coincident", 0, 2, 1, 1),
    Sketcher.Constraint("Coincident", 1, 2, 2, 1),
    Sketcher.Constraint("Coincident", 2, 2, 3, 1),
    Sketcher.Constraint("Coincident", 3, 2, 0, 1),
    Sketcher.Constraint("Coincident", 4, 2, 5, 1),
    Sketcher.Constraint("Coincident", 5, 2, 6, 1),
    Sketcher.Constraint("Coincident", 6, 2, 7, 1),
    Sketcher.Constraint("Coincident", 7, 2, 4, 1),
    Sketcher.Constraint("Vertical", 0),
    Sketcher.Constraint("Horizontal", 1),
    Sketcher.Constraint("Vertical", 2),
    Sketcher.Constraint("Horizontal", 3),
    Sketcher.Constraint("Vertical", 4),
    Sketcher.Constraint("Horizontal", 5),
    Sketcher.Constraint("Vertical", 6),
    Sketcher.Constraint("Horizontal", 7),
    Sketcher.Constraint("Horizontal", 1, 2, 4, 2),
    Sketcher.Constraint("Horizontal", 3, 2, 6, 2),
    Sketcher.Constraint("Equal", 3, 5),
    Sketcher.Constraint("DistanceY", 0, 2, 0, 1, Q("8 mm")),
    Sketcher.Constraint("DistanceX", 1, 1, 1, 2, Q("1.5 mm")),
    Sketcher.Constraint("DistanceX", 0, 2, 4, 2, Q("27 mm")),
    Sketcher.Constraint("DistanceY", 0, 2, -1, 1, Q("3.383189 mm")),
    Sketcher.Constraint("DistanceX", 0, 2, -1, 1, Q("13.908914 mm")),
])
sketch10.setExpression("Constraints[19]", "Params.sketch10_height")
sketch10.setExpression("Constraints[20]", "Params.sketch10_width")
pad2 = body.newObject("PartDesign::Pad", "Pad001")
pad2.Profile = sketch10
pad2.setExpression("Length", "Params.pad2_length")

sketch11 = body.newObject("Sketcher::SketchObject", "Sketch010")
sketch11.AttachmentSupport = (doc.getObject("XZ_Plane"), [""])
sketch11.MapMode = "FlatFace"
sketch11.addGeometry([
    Part.LineSegment(Vector(-13.9, 2.1, 0), Vector(-13.9, 0.5, 0)),
    Part.LineSegment(Vector(-13.9, 0.5, 0), Vector(14.6, 0.5, 0)),
    Part.LineSegment(Vector(14.6, 0.5, 0), Vector(14.6, 2.1, 0)),
    Part.LineSegment(Vector(14.6, 2.1, 0), Vector(-13.9, 2.1, 0)),
], False)
sketch11.addConstraint([
    Sketcher.Constraint("Coincident", 0, 2, 1, 1),
    Sketcher.Constraint("Coincident", 1, 2, 2, 1),
    Sketcher.Constraint("Coincident", 2, 2, 3, 1),
    Sketcher.Constraint("Coincident", 3, 2, 0, 1),
    Sketcher.Constraint("Vertical", 0),
    Sketcher.Constraint("Horizontal", 1),
    Sketcher.Constraint("Vertical", 2),
    Sketcher.Constraint("Horizontal", 3),
    Sketcher.Constraint("DistanceX", 1, 1, 1, 2, Q("28.5 mm")),
    Sketcher.Constraint("DistanceY", 0, 2, 0, 1, Q("1.6 mm")),
    Sketcher.Constraint("DistanceY", -1, 1, 0, 2, Q("0.5 mm")),
    Sketcher.Constraint("DistanceX", 0, 2, -1, 1, Q("13.908914 mm")),
])
sketch11.setExpression("Constraints[8]", "Params.sketch11_width")
sketch11.setExpression("Constraints[9]", "Params.sketch11_height")
pad3 = body.newObject("PartDesign::Pad", "Pad002")
pad3.Profile = sketch11
pad3.setExpression("Length", "Params.pad3_length")
doc.recompute()

fillet2 = body.newObject("PartDesign::Fillet", "Fillet001")
fillet2.Base = (pad3, edges_at(pad3, [(-13.909, -4, 1.3), (14.591, -4, 1.3)]))
fillet2.setExpression("Radius", "Params.fillet2_radius")
doc.recompute()

chamfer2 = body.newObject("PartDesign::Chamfer", "Chamfer001")
chamfer2.Base = (fillet2, edges_at(fillet2, [
    (-13.159, -1.2, -3.383),
    (-13.159, -1.2, 4.617),
    (13.841, -1.2, -3.383),
    (13.841, -1.2, 4.617),
]))
chamfer2.setExpression("Size", "Params.chamfer2_size")
doc.recompute()

chamfer3 = body.newObject("PartDesign::Chamfer", "Chamfer002")
chamfer3.Base = (chamfer2, edges_at(chamfer2, [
    (-5.683, 0, -4.3),
    (-2.183, 0, -2.35),
    (7.788, 0, -4.3),
    (11.288, 0, -2.35),
    (21.05, 0, 6.035),
    (17.05, 0, 4.385),
    (-2.476, 0, -4.007),
    (-8.89, 0, -4.007),
    (4.581, 0, -4.007),
    (10.996, 0, -4.007),
    (24.757, 0, 5.742),
    (17.343, 0, 5.742),
    (-5.683, 0, -0.8),
    (-9.183, 0, -2.35),
    (7.788, 0, -0.8),
    (4.288, 0, -2.35),
    (21.05, 0, 3.135),
    (25.05, 0, 4.385),
    (-8.883, 0, -1.1),
    (-2.483, 0, -1.1),
    (4.588, 0, -1.1),
    (10.988, 0, -1.1),
    (17.35, 0, 3.435),
    (24.75, 0, 3.435),
]))
chamfer3.setExpression("Size", "Params.chamfer3_size")
doc.recompute()

fillet3 = body.newObject("PartDesign::Fillet", "Fillet002")
fillet3.Base = (chamfer3, edges_at(chamfer3, [
    (30, 0.6, 8.5),
    (-30, 0.6, 8.5),
    (-30, 0.6, -8.5),
    (30, 0.6, -8.5),
]))
fillet3.setExpression("Radius", "Params.fillet3_radius")
doc.recompute()

chamfer4 = body.newObject("PartDesign::Chamfer", "Chamfer003")
chamfer4.Base = (fillet3, edges_at(fillet3, [
    (30, 0, 0),
    (0, 0, 8.5),
    (-30, 0, 0),
    (0, 0, -8.5),
    (-29.414, 0, -7.914),
    (-29.414, 0, 7.914),
    (29.414, 0, -7.914),
    (29.414, 0, 7.914),
]))
chamfer4.setExpression("Size", "Params.chamfer4_size")

doc.recompute()
